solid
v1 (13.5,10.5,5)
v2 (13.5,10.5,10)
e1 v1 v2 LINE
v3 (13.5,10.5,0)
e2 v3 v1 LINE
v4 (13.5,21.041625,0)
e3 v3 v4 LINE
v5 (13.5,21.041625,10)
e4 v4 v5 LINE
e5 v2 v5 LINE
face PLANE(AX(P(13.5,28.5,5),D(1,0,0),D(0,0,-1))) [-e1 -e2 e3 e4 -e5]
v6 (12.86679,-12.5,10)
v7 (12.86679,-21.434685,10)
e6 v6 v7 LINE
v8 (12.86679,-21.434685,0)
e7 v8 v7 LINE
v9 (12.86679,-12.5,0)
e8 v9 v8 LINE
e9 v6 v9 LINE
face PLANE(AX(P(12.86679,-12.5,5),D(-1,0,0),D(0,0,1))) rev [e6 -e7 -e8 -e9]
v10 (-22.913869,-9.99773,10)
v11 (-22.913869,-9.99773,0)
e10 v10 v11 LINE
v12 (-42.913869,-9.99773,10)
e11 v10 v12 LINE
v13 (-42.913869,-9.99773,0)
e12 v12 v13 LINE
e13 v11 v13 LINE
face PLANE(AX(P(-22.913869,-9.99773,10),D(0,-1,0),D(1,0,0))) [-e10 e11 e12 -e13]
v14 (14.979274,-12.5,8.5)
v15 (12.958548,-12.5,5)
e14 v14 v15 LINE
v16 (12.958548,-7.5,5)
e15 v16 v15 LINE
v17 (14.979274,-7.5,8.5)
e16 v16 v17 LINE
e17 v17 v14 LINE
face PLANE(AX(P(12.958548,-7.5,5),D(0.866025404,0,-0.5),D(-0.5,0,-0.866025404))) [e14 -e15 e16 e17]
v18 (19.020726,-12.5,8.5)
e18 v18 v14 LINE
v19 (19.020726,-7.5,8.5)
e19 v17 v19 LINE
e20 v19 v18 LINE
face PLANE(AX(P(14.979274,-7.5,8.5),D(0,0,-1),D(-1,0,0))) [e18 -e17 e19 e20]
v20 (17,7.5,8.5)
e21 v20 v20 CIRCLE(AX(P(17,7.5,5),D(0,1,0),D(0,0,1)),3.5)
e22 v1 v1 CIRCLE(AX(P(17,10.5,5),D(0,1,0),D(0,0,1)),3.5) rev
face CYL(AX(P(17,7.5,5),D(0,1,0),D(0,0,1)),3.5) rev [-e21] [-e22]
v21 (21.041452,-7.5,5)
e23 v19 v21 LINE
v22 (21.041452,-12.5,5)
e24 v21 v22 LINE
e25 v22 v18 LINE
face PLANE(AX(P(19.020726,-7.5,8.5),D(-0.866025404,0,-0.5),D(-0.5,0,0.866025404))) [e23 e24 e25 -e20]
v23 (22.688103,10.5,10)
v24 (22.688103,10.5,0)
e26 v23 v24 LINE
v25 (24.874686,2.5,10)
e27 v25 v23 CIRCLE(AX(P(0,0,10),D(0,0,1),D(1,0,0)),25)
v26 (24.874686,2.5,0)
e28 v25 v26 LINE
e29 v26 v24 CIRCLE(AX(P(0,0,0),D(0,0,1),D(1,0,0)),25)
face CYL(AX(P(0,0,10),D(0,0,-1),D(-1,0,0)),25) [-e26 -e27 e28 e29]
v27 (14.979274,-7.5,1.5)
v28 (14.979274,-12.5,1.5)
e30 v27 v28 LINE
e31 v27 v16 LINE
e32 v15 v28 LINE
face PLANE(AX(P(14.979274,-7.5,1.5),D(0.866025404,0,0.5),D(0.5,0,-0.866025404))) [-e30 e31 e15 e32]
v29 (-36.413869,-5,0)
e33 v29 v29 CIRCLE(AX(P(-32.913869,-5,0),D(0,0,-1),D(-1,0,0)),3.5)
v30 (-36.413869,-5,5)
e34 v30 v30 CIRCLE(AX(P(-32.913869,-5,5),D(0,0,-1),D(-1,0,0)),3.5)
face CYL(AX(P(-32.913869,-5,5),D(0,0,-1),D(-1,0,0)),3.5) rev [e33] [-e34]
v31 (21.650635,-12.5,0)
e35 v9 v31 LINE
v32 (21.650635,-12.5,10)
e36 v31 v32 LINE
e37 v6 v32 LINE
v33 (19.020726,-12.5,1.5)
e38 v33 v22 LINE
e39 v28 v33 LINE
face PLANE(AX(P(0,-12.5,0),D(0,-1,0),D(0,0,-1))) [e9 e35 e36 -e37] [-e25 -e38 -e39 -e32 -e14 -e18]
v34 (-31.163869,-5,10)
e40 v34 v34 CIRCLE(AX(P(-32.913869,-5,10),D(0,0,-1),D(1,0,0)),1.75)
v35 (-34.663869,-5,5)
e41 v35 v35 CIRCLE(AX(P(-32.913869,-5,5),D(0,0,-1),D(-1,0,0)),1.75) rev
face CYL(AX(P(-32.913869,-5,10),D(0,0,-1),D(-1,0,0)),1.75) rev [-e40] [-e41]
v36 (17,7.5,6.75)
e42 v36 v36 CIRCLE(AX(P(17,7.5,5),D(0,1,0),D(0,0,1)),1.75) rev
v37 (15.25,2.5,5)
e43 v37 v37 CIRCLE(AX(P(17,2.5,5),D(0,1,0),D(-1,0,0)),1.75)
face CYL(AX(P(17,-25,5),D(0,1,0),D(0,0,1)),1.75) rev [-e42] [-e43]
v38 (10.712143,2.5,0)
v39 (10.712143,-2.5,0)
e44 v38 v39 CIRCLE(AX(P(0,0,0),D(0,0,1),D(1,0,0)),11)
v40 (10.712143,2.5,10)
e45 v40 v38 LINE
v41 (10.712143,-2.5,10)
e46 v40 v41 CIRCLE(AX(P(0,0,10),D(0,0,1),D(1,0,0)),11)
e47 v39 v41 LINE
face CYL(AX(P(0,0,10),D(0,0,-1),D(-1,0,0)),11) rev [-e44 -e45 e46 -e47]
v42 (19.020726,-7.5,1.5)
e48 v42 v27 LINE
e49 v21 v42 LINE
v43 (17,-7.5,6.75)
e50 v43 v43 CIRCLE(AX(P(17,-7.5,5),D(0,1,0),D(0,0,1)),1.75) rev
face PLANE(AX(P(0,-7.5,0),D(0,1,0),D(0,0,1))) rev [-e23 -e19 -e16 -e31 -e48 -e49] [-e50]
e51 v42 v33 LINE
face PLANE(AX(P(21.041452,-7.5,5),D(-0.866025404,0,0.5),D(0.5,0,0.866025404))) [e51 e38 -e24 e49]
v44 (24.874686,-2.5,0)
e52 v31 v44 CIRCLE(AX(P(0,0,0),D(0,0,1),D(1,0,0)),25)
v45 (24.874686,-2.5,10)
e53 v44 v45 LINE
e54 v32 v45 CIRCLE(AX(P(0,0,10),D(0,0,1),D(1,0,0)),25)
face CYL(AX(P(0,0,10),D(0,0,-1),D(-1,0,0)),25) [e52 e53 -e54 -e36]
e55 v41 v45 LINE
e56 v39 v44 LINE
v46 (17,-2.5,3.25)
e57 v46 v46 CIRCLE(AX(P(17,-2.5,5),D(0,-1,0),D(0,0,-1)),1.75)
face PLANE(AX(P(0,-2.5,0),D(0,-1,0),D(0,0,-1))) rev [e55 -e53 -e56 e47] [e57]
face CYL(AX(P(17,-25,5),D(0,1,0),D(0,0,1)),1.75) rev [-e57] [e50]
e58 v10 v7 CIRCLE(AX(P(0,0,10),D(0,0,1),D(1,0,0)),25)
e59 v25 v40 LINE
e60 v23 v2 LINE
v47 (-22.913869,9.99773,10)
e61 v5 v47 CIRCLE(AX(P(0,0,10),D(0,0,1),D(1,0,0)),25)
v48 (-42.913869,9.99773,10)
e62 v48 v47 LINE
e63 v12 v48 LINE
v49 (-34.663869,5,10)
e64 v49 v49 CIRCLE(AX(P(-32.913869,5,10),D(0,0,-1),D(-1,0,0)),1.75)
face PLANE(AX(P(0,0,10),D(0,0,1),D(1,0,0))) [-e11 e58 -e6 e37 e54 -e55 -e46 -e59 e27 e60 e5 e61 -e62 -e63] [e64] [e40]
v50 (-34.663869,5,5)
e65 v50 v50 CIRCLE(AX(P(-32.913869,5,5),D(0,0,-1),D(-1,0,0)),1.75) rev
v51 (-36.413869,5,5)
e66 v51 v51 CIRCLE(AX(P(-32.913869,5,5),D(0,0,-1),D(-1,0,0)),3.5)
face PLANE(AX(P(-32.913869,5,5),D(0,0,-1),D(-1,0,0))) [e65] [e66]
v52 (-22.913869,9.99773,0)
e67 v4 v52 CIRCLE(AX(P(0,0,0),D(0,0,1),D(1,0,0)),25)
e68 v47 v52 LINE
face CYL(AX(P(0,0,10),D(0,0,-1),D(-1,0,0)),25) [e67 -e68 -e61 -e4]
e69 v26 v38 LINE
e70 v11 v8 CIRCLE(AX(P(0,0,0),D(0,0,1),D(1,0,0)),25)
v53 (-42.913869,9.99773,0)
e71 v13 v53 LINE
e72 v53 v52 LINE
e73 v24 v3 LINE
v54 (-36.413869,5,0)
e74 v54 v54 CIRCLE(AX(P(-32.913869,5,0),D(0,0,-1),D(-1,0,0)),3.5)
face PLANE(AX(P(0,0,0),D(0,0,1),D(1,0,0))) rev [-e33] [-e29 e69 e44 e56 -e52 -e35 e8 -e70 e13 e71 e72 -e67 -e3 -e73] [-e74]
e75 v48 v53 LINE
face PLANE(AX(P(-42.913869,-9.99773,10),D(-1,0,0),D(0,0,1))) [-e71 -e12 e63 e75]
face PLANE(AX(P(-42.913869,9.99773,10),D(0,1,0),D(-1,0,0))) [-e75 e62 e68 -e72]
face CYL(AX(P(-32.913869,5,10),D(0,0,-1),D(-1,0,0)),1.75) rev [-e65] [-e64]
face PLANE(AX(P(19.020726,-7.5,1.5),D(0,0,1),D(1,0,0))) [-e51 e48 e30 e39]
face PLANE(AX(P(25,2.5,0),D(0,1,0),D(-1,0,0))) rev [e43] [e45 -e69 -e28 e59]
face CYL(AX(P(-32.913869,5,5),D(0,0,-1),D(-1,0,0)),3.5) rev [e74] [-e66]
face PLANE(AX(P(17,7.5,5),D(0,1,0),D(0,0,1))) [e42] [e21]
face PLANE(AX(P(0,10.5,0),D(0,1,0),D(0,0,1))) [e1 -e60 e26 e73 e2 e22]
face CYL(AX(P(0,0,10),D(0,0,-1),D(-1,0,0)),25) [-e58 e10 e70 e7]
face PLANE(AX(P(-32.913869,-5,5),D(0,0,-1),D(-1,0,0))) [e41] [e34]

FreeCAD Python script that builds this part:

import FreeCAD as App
import Part
import Sketcher
from FreeCAD import Vector
Q = App.Units.Quantity

doc = App.newDocument("Part")
params = doc.addObject("Spreadsheet::Sheet", "Params")
for row, (alias, value) in enumerate([
    ("sketch1_diameter", "50 mm"),
    ("sketch1_diameter2", "22 mm"),
    ("pad1_length", "10 mm"),
    ("sketch2_width", "25 mm"),
    ("sketch2_height", "5 mm"),
    ("pocket1_length", "10 mm"),
    ("sketch3_diameter", "3.5 mm"),
    ("sketch4_diameter", "7 mm"),
    ("pocket3_length", "20 mm"),
    ("pocket4_length", "25 mm"),
    ("pocket5_length", "15 mm"),
    ("sketch7_diameter", "3.5 mm"),
    ("sketch7_width", "20 mm"),
    ("pad2_length", "10 mm"),
    ("pocket6_length", "1 mm"),
    ("pocket6_length2", "17 mm"),
    ("sketch9_diameter", "7 mm"),
    ("pocket7_length", "5 mm"),
], start=1):
    params.set(f"A{row}", alias)
    params.set(f"B{row}", "=" + value)
    params.setAlias(f"B{row}", alias)

body = doc.addObject("PartDesign::Body", "Body")

sketch1 = body.newObject("Sketcher::SketchObject", "Sketch")
sketch1.AttachmentSupport = (doc.getObject("XY_Plane"), [""])
sketch1.MapMode = "FlatFace"
sketch1.addGeometry(Part.Circle(Vector(0, 0, 0), Vector(0, 0, 1), 25), False)
sketch1.addGeometry(Part.Circle(Vector(0, 0, 0), Vector(0, 0, 1), 11), False)
sketch1.addConstraint(Sketcher.Constraint("Coincident", 0, 3, -1, 1))
sketch1.addConstraint(Sketcher.Constraint("Coincident", 1, 3, -1, 1))
sketch1.addConstraint(Sketcher.Constraint("Diameter", 0, 50.0))
sketch1.addConstraint(Sketcher.Constraint("Diameter", 1, 22.0))
sketch1.setExpression("Constraints[2]", "Params.sketch1_diameter")
sketch1.setExpression("Constraints[3]", "Params.sketch1_diameter2")
pad1 = body.newObject("PartDesign::Pad", "Pad")
pad1.Profile = sketch1
pad1.setExpression("Length", "Params.pad1_length")

sketch2 = body.newObject("Sketcher::SketchObject", "Sketch001")
sketch2.AttachmentSupport = (doc.getObject("XY_Plane"), [""])
sketch2.MapMode = "FlatFace"
sketch2.AttachmentOffset = App.Placement(Vector(0, 0, 10), App.Rotation())
sketch2.addGeometry(Part.LineSegment(Vector(25, 2.5, 0), Vector(0, 2.5, 0)), False)
sketch2.addGeometry(Part.LineSegment(Vector(0, 2.5, 0), Vector(0, -2.5, 0)), False)
sketch2.addGeometry(Part.LineSegment(Vector(0, -2.5, 0), Vector(25, -2.5, 0)), False)
sketch2.addGeometry(Part.LineSegment(Vector(25, -2.5, 0), Vector(25, 2.5, 0)), False)
sketch2.addConstraint(Sketcher.Constraint("Coincident", 0, 2, 1, 1))
sketch2.addConstraint(Sketcher.Constraint("Coincident", 1, 2, 2, 1))
sketch2.addConstraint(Sketcher.Constraint("Coincident", 2, 2, 3, 1))
sketch2.addConstraint(Sketcher.Constraint("Coincident", 3, 2, 0, 1))
sketch2.addConstraint(Sketcher.Constraint("Horizontal", 0))
sketch2.addConstraint(Sketcher.Constraint("Vertical", 1))
sketch2.addConstraint(Sketcher.Constraint("Horizontal", 2))
sketch2.addConstraint(Sketcher.Constraint("Vertical", 3))
sketch2.addConstraint(Sketcher.Constraint("Symmetric", 0, 2, 1, 2, -1, 1))
sketch2.addConstraint(Sketcher.Constraint("DistanceX", 0, 2, 0, 1, 25.0))
sketch2.addConstraint(Sketcher.Constraint("DistanceY", 1, 2, 1, 1, 5.0))
sketch2.setExpression("Constraints[9]", "Params.sketch2_width")
sketch2.setExpression("Constraints[10]", "Params.sketch2_height")
pocket1 = body.newObject("PartDesign::Pocket", "Pocket")
pocket1.Profile = sketch2
pocket1.setExpression("Length", "Params.pocket1_length")

sketch3 = body.newObject("Sketcher::SketchObject", "Sketch002")
sketch3.AttachmentSupport = (doc.getObject("XZ_Plane"), [""])
sketch3.MapMode = "FlatFace"
sketch3.AttachmentOffset = App.Placement(Vector(0, 0, 2.5), App.Rotation())
sketch3.addGeometry(Part.Circle(Vector(17, 5, 0), Vector(0, 0, 1), 1.75), False)
sketch3.addConstraint(Sketcher.Constraint("Diameter", 0, 3.5))
sketch3.addConstraint(Sketcher.Constraint("DistanceX", -1, 1, 0, 3, 17.0))
sketch3.addConstraint(Sketcher.Constraint("DistanceY", -1, 1, 0, 3, 5.0))
sketch3.setExpression("Constraints[0]", "Params.sketch3_diameter")
pocket2 = body.newObject("PartDesign::Pocket", "Pocket001")
pocket2.Profile = sketch3
pocket2.Type = "ThroughAll"
pocket2.Midplane = True

sketch4 = body.newObject("Sketcher::SketchObject", "Sketch003")
sketch4.AttachmentSupport = (doc.getObject("XZ_Plane"), [""])
sketch4.MapMode = "FlatFace"
sketch4.AttachmentOffset = App.Placement(Vector(0, 0, -27.5), App.Rotation())
sketch4.addGeometry(Part.Circle(Vector(17, 5, 0), Vector(0, 0, 1), 3.5), False)
sketch4.addConstraint(Sketcher.Constraint("Diameter", 0, 7.0))
sketch4.addConstraint(Sketcher.Constraint("DistanceX", -1, 1, 0, 3, 17.0))
sketch4.addConstraint(Sketcher.Constraint("DistanceY", -1, 1, 0, 3, 5.0))
sketch4.setExpression("Constraints[0]", "Params.sketch4_diameter")
pocket3 = body.newObject("PartDesign::Pocket", "Pocket002")
pocket3.Profile = sketch4
pocket3.setExpression("Length", "Params.pocket3_length")
pocket3.Reversed = True

sketch5 = body.newObject("Sketcher::SketchObject", "Sketch004")
sketch5.AttachmentSupport = (doc.getObject("XZ_Plane"), [""])
sketch5.MapMode = "FlatFace"
sketch5.AttachmentOffset = App.Placement(Vector(0, 0, 32.5), App.Rotation())
sketch5.addGeometry(Part.LineSegment(Vector(21.041452, 5, 0), Vector(19.020726, 1.5, 0)), False)
sketch5.addGeometry(Part.LineSegment(Vector(19.020726, 1.5, 0), Vector(14.979274, 1.5, 0)), False)
sketch5.addGeometry(Part.LineSegment(Vector(14.979274, 1.5, 0), Vector(12.958548, 5, 0)), False)
sketch5.addGeometry(Part.LineSegment(Vector(12.958548, 5, 0), Vector(14.979274, 8.5, 0)), False)
sketch5.addGeometry(Part.LineSegment(Vector(14.979274, 8.5, 0), Vector(19.020726, 8.5, 0)), False)
sketch5.addGeometry(Part.LineSegment(Vector(19.020726, 8.5, 0), Vector(21.041452, 5, 0)), False)
sketch5.addConstraint(Sketcher.Constraint("Coincident", 0, 2, 1, 1))
sketch5.addConstraint(Sketcher.Constraint("Coincident", 1, 2, 2, 1))
sketch5.addConstraint(Sketcher.Constraint("Coincident", 2, 2, 3, 1))
sketch5.addConstraint(Sketcher.Constraint("Coincident", 3, 2, 4, 1))
sketch5.addConstraint(Sketcher.Constraint("Coincident", 4, 2, 5, 1))
sketch5.addConstraint(Sketcher.Constraint("Coincident", 5, 2, 0, 1))
sketch5.addConstraint(Sketcher.Constraint("Horizontal", 1))
sketch5.addConstraint(Sketcher.Constraint("Horizontal", 4))
sketch5.addConstraint(Sketcher.Constraint("Parallel", 0, 3))
sketch5.addConstraint(Sketcher.Constraint("Parallel", 2, 5))
sketch5.addConstraint(Sketcher.Constraint("Horizontal", 2, 2, 5, 2))
sketch5.addConstraint(Sketcher.Constraint("Vertical", 1, 2, 3, 2))
sketch5.addConstraint(Sketcher.Constraint("Vertical", 0, 2, 4, 2))
sketch5.addConstraint(Sketcher.Constraint("Angle", 0, Q("-120 deg")))
sketch5.addConstraint(Sketcher.Constraint("DistanceY", -1, 1, 2, 2, 5.0))
sketch5.addConstraint(Sketcher.Constraint("DistanceY", 1, 2, 3, 2, 7.0))
sketch5.addConstraint(Sketcher.Constraint("DistanceX", 1, 2, 1, 1, 4.041452))
sketch5.addConstraint(Sketcher.Constraint("DistanceX", -1, 1, 2, 2, 12.958548))
pocket4 = body.newObject("PartDesign::Pocket", "Pocket003")
pocket4.Profile = sketch5
pocket4.setExpression("Length", "Params.pocket4_length")

sketch6 = body.newObject("Sketcher::SketchObject", "Sketch005")
sketch6.AttachmentSupport = (doc.getObject("XZ_Plane"), [""])
sketch6.MapMode = "FlatFace"
sketch6.AttachmentOffset = App.Placement(Vector(0, 0, 27.5), App.Rotation())
sketch6.addGeometry(Part.LineSegment(Vector(12.86679, -1.917841, 0), Vector(27.200286, -1.917841, 0)), False)
sketch6.addGeometry(Part.LineSegment(Vector(27.200286, -1.917841, 0), Vector(26.866413, 13.440304, 0)), False)
sketch6.addGeometry(Part.LineSegment(Vector(26.866413, 13.440304, 0), Vector(13.082239, 14.012657, 0)), False)
sketch6.addGeometry(Part.LineSegment(Vector(13.082239, 14.012657, 0), Vector(12.86679, 14.61729, 0)), False)
sketch6.addGeometry(Part.LineSegment(Vector(12.86679, 14.61729, 0), Vector(12.86679, -1.917841, 0)), False)
sketch6.addConstraint(Sketcher.Constraint("Coincident", 0, 2, 1, 1))
sketch6.addConstraint(Sketcher.Constraint("Coincident", 1, 2, 2, 1))
sketch6.addConstraint(Sketcher.Constraint("Coincident", 2, 2, 3, 1))
sketch6.addConstraint(Sketcher.Constraint("Coincident", 3, 2, 4, 1))
sketch6.addConstraint(Sketcher.Constraint("Coincident", 4, 2, 0, 1))
sketch6.addConstraint(Sketcher.Constraint("Horizontal", 0))
sketch6.addConstraint(Sketcher.Constraint("Vertical", 4))
sketch6.addConstraint(Sketcher.Constraint("DistanceY", 4, 2, 4, 1, 16.535132))
sketch6.addConstraint(Sketcher.Constraint("DistanceY", 0, 2, 2, 2, 15.930499))
sketch6.addConstraint(Sketcher.Constraint("Distance", 2, 13.796052))
sketch6.addConstraint(Sketcher.Constraint("Distance", 3, 0.641872))
sketch6.addConstraint(Sketcher.Constraint("DistanceX", 0, 1, 0, 2, 14.333496))
sketch6.addConstraint(Sketcher.Constraint("DistanceY", 0, 2, -1, 1, 1.917841))
sketch6.addConstraint(Sketcher.Constraint("DistanceX", -1, 1, 2, 2, 13.082239))
sketch6.addConstraint(Sketcher.Constraint("Distance", 1, 15.361774))
pocket5 = body.newObject("PartDesign::Pocket", "Pocket004")
pocket5.Profile = sketch6
pocket5.setExpression("Length", "Params.pocket5_length")

sketch7 = body.newObject("Sketcher::SketchObject", "Sketch006")
sketch7.AttachmentSupport = (doc.getObject("XY_Plane"), [""])
sketch7.MapMode = "FlatFace"
sketch7.addGeometry(Part.LineSegment(Vector(-22.913869, 9.99773, 0), Vector(-22.913869, -9.99773, 0)), False)
sketch7.addGeometry(Part.LineSegment(Vector(-22.913869, -9.99773, 0), Vector(-42.913869, -9.99773, 0)), False)
sketch7.addGeometry(Part.LineSegment(Vector(-42.913869, -9.99773, 0), Vector(-42.913869, 9.99773, 0)), False)
sketch7.addGeometry(Part.LineSegment(Vector(-42.913869, 9.99773, 0), Vector(-22.913869, 9.99773, 0)), False)
sketch7.addGeometry(Part.Circle(Vector(-32.913869, -5, 0), Vector(0, 0, 1), 1.75), False)
sketch7.addGeometry(Part.Circle(Vector(-32.913869, 5, 0), Vector(0, 0, 1), 1.75), False)
sketch7.addConstraint(Sketcher.Constraint("Coincident", 0, 2, 1, 1))
sketch7.addConstraint(Sketcher.Constraint("Coincident", 1, 2, 2, 1))
sketch7.addConstraint(Sketcher.Constraint("Coincident", 2, 2, 3, 1))
sketch7.addConstraint(Sketcher.Constraint("Coincident", 3, 2, 0, 1))
sketch7.addConstraint(Sketcher.Constraint("Vertical", 0))
sketch7.addConstraint(Sketcher.Constraint("Horizontal", 1))
sketch7.addConstraint(Sketcher.Constraint("Vertical", 2))
sketch7.addConstraint(Sketcher.Constraint("Horizontal", 3))
sketch7.addConstraint(Sketcher.Constraint("Equal", 4, 5))
sketch7.addConstraint(Sketcher.Constraint("Symmetric", 4, 3, 5, 3, -1))
sketch7.addConstraint(Sketcher.Constraint("Diameter", 4, 3.5))
sketch7.addConstraint(Sketcher.Constraint("DistanceX", 1, 2, 1, 1, 20.0))
sketch7.addConstraint(Sketcher.Constraint("DistanceY", 4, 3, -1, 1, 5.0))
sketch7.addConstraint(Sketcher.Constraint("DistanceX", 4, 3, 0, 2, 10.0))
sketch7.addConstraint(Sketcher.Constraint("DistanceY", 0, 2, 0, 1, 19.995459))
sketch7.addConstraint(Sketcher.Constraint("DistanceX", 4, 3, -1, 1, 32.913869))
sketch7.addConstraint(Sketcher.Constraint("DistanceY", 0, 2, -1, 1, 9.99773))
sketch7.setExpression("Constraints[10]", "Params.sketch7_diameter")
sketch7.setExpression("Constraints[11]", "Params.sketch7_width")
pad2 = body.newObject("PartDesign::Pad", "Pad001")
pad2.Profile = sketch7
pad2.setExpression("Length", "Params.pad2_length")

sketch8 = body.newObject("Sketcher::SketchObject", "Sketch007")
sketch8.AttachmentSupport = (doc.getObject("XZ_Plane"), [""])
sketch8.MapMode = "FlatFace"
sketch8.AttachmentOffset = App.Placement(Vector(0, 0, -27.5), App.Rotation())
sketch8.addGeometry(Part.LineSegment(Vector(13.5, 13.927187, 0), Vector(27.549463, 13.927187, 0)), False)
sketch8.addGeometry(Part.LineSegment(Vector(27.549463, 13.927187, 0), Vector(27.549463, -2.17973, 0)), False)
sketch8.addGeometry(Part.LineSegment(Vector(27.549463, -2.17973, 0), Vector(13.5, -2.17973, 0)), False)
sketch8.addGeometry(Part.LineSegment(Vector(13.5, -2.17973, 0), Vector(13.5, 13.927187, 0)), False)
sketch8.addConstraint(Sketcher.Constraint("Coincident", 0, 2, 1, 1))
sketch8.addConstraint(Sketcher.Constraint("Coincident", 1, 2, 2, 1))
sketch8.addConstraint(Sketcher.Constraint("Coincident", 2, 2, 3, 1))
sketch8.addConstraint(Sketcher.Constraint("Coincident", 3, 2, 0, 1))
sketch8.addConstraint(Sketcher.Constraint("Horizontal", 0))
sketch8.addConstraint(Sketcher.Constraint("Vertical", 1))
sketch8.addConstraint(Sketcher.Constraint("Horizontal", 2))
sketch8.addConstraint(Sketcher.Constraint("Vertical", 3))
sketch8.addConstraint(Sketcher.Constraint("DistanceX", -1, 1, 2, 2, 13.5))
sketch8.addConstraint(Sketcher.Constraint("DistanceX", 0, 1, 0, 2, 14.049463))
sketch8.addConstraint(Sketcher.Constraint("DistanceY", 1, 2, 1, 1, 16.106917))
sketch8.addConstraint(Sketcher.Constraint("DistanceY", 1, 2, -1, 1, 2.17973))
pocket6 = body.newObject("PartDesign::Pocket", "Pocket005")
pocket6.Profile = sketch8
pocket6.Type = "TwoLengths"
pocket6.setExpression("Length", "Params.pocket6_length")
pocket6.setExpression("Length2", "Params.pocket6_length2")

sketch9 = body.newObject("Sketcher::SketchObject", "Sketch008")
sketch9.AttachmentSupport = (doc.getObject("XY_Plane"), [""])
sketch9.MapMode = "FlatFace"
sketch9.addGeometry(Part.Circle(Vector(-32.913869, 5, 0), Vector(0, 0, 1), 3.5), False)
sketch9.addGeometry(Part.Circle(Vector(-32.913869, -5, 0), Vector(0, 0, 1), 3.5), False)
sketch9.addConstraint(Sketcher.Constraint("Equal", 0, 1))
sketch9.addConstraint(Sketcher.Constraint("Symmetric", 0, 3, 1, 3, -1))
sketch9.addConstraint(Sketcher.Constraint("Diameter", 0, 7.0))
sketch9.addConstraint(Sketcher.Constraint("DistanceY", -1, 1, 0, 3, 5.0))
sketch9.addConstraint(Sketcher.Constraint("DistanceX", 0, 3, -1, 1, 32.913869))
sketch9.setExpression("Constraints[2]", "Params.sketch9_diameter")
pocket7 = body.newObject("PartDesign::Pocket", "Pocket006")
pocket7.Profile = sketch9
pocket7.setExpression("Length", "Params.pocket7_length")
pocket7.Reversed = True

doc.recompute()
